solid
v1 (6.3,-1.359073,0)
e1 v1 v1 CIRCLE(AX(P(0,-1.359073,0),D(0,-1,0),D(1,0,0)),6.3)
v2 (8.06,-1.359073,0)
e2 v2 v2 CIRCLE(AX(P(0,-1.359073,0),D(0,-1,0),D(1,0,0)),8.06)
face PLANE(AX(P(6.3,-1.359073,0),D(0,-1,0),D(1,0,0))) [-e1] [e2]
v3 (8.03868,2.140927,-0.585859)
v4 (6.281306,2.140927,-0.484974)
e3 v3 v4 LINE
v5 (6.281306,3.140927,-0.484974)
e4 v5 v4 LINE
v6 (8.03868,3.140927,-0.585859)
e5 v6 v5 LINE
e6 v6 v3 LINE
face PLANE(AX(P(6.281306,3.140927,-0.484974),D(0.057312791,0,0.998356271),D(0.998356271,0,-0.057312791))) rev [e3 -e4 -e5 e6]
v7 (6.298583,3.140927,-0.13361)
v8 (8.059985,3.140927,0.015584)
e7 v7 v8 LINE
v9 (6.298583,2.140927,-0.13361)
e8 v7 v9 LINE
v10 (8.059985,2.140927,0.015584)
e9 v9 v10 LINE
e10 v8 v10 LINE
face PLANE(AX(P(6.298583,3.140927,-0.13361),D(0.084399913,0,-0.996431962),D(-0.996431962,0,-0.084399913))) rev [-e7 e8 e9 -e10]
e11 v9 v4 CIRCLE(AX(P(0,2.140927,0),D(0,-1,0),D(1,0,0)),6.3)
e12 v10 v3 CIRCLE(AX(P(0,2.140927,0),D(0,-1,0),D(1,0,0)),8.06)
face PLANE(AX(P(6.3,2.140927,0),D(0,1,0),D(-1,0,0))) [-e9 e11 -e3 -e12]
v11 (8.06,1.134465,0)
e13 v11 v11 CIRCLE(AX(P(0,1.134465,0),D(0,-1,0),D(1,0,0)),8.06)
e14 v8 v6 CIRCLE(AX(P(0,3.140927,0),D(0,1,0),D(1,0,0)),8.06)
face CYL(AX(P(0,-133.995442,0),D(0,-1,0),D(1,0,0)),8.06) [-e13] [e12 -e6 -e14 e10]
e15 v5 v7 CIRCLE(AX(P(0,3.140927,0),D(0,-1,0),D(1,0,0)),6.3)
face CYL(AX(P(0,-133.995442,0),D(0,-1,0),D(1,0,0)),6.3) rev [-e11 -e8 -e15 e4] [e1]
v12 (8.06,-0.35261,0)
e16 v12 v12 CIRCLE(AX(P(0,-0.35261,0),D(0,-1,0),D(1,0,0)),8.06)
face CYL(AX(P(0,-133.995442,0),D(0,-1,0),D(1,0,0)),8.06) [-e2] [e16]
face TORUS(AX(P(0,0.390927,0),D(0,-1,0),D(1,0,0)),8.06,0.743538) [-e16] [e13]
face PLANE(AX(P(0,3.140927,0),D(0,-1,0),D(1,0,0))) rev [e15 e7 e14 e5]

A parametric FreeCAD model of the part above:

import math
import FreeCAD as App
import Part
import Sketcher
from FreeCAD import Vector
Q = App.Units.Quantity

doc = App.newDocument("Part")
body = doc.addObject("PartDesign::Body", "Body")

# Sketch on XY plane
sketch1 = body.newObject("Sketcher::SketchObject", "Sketch")
sketch1.AttachmentSupport = (doc.getObject("XY_Plane"), [""])
sketch1.MapMode = "FlatFace"
sketch1.addGeometry([
    Part.LineSegment(Vector(8.1, -1.4, 0), Vector(8.1, -0.4, 0)),  # 0
    Part.ArcOfCircle(Part.Circle(Vector(8.1, 0.4, 0), Vector(0, 0, 1), 0.7), math.radians(-90), math.radians(90)),  # 1
    Part.LineSegment(Vector(8.1, 1.1, 0), Vector(8.1, 2.1, 0)),  # 2
    Part.LineSegment(Vector(8.1, 2.1, 0), Vector(6.3, 2.1, 0)),  # 3
    Part.LineSegment(Vector(6.3, 2.1, 0), Vector(6.3, -1.4, 0)),  # 4
    Part.LineSegment(Vector(6.3, -1.4, 0), Vector(8.1, -1.4, 0)),  # 5
], False)
sketch1.addConstraint([
    Sketcher.Constraint("Coincident", 0, 2, 1, 1),
    Sketcher.Constraint("Coincident", 1, 2, 2, 1),
    Sketcher.Constraint("Coincident", 2, 2, 3, 1),
    Sketcher.Constraint("Coincident", 3, 2, 4, 1),
    Sketcher.Constraint("Coincident", 4, 2, 5, 1),
    Sketcher.Constraint("Coincident", 5, 2, 0, 1),
    Sketcher.Constraint("Vertical", 0),
    Sketcher.Constraint("Vertical", 2),
    Sketcher.Constraint("Horizontal", 3),
    Sketcher.Constraint("Vertical", 4),
    Sketcher.Constraint("Horizontal", 5),
    Sketcher.Constraint("Vertical", 1, 3, 0, 2),
    Sketcher.Constraint("Vertical", 0, 2, 1, 2),
    Sketcher.Constraint("Equal", 0, 2),
    Sketcher.Constraint("DistanceY", 4, 2, 4, 1, Q("3.5 mm")),
    Sketcher.Constraint("DistanceX", 3, 2, 3, 1, Q("1.76 mm")),
    Sketcher.Constraint("DistanceX", -1, 1, 3, 2, Q("6.3 mm")),
    Sketcher.Constraint("Radius", 1, Q("0.743538 mm")),
    Sketcher.Constraint("DistanceY", 0, 2, -1, 1, Q("0.35261 mm")),
])
revolution = body.newObject("PartDesign::Revolution", "Revolution")
revolution.Profile = sketch1
revolution.ReferenceAxis = (sketch1, ["V_Axis"])
revolution.Angle = 360

# Sketch on XZ plane
sketch2 = body.newObject("Sketcher::SketchObject", "Sketch001")
sketch2.AttachmentSupport = (doc.getObject("XZ_Plane"), [""])
sketch2.MapMode = "FlatFace"
sketch2.AttachmentOffset = App.Placement(Vector(0, 0, -2.140927), App.Rotation())
sketch2.addGeometry([
    Part.LineSegment(Vector(6.3, -0.13, 0), Vector(8.06, 0.02, 0)),
    Part.ArcOfCircle(Part.Circle(Vector(0, 0, 0), Vector(0, 0, 1), 8.06), math.radians(-4.17), math.radians(0.11)),
    Part.LineSegment(Vector(8.04, -0.59, 0), Vector(6.28, -0.48, 0)),
    Part.ArcOfCircle(Part.Circle(Vector(0, 0, 0), Vector(0, 0, 1), 6.3), math.radians(-4.41), math.radians(-1.22)),
], False)
sketch2.addConstraint([
    Sketcher.Constraint("Coincident", 0, 2, 1, 2),
    Sketcher.Constraint("Coincident", 1, 1, 2, 1),
    Sketcher.Constraint("Coincident", 2, 2, 3, 1),
    Sketcher.Constraint("Coincident", 3, 2, 0, 1),
    Sketcher.Constraint("Coincident", 1, 3, -1, 1),
    Sketcher.Constraint("Coincident", 3, 3, -1, 1),
    Sketcher.Constraint("Radius", 3, Q("6.300001 mm")),
    Sketcher.Constraint("Radius", 1, Q("8.060001 mm")),
    Sketcher.Constraint("DistanceX", 3, 2, 0, 2, Q("1.761402 mm")),
    Sketcher.Constraint("Distance", 0, Q("1.767709 mm")),
    Sketcher.Constraint("DistanceX", -1, 1, 1, 1, Q("8.03868 mm")),
    Sketcher.Constraint("DistanceX", 2, 2, 0, 2, Q("1.778679 mm")),
])
pad1 = body.newObject("PartDesign::Pad", "Pad")
pad1.Profile = sketch2
pad1.Length = 1
pad1.Reversed = True

doc.recompute()
